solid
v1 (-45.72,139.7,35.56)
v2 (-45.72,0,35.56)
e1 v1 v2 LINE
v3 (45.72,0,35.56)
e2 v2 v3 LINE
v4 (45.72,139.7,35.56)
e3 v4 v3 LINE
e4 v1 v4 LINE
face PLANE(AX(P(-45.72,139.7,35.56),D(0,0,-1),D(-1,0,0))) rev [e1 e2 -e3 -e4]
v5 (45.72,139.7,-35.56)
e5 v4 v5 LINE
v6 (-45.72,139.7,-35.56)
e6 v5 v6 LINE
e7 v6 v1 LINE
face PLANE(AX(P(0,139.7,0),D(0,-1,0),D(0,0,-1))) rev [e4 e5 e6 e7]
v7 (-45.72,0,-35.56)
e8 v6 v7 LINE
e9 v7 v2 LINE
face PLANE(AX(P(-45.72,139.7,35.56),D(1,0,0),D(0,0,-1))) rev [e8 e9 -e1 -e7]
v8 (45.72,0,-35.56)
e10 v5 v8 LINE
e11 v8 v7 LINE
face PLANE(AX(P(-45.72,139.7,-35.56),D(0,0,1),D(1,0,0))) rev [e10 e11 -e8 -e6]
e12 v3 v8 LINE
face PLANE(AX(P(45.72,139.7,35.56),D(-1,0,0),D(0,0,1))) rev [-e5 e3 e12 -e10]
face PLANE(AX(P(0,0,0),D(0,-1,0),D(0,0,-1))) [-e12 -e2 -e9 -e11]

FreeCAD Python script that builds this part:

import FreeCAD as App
import Part
import Sketcher

V = App.Vector
Q = App.Units.Quantity

doc = App.newDocument("Part")
body = doc.addObject("PartDesign::Body", "Body")

# Sketch on XZ plane
sketch1 = body.newObject("Sketcher::SketchObject", "Sketch")
sketch1.AttachmentSupport = (doc.getObject("XZ_Plane"), [""])
sketch1.MapMode = "FlatFace"
sketch1.addGeometry([
    Part.LineSegment(V(-46, -36, 0), V(-46, 36, 0)),
    Part.LineSegment(V(-46, 36, 0), V(46, 36, 0)),
    Part.LineSegment(V(46, 36, 0), V(46, -36, 0)),
    Part.LineSegment(V(46, -36, 0), V(-46, -36, 0)),
], False)
sketch1.addConstraint([
    Sketcher.Constraint("Coincident", 0, 2, 1, 1),
    Sketcher.Constraint("Coincident", 1, 2, 2, 1),
    Sketcher.Constraint("Coincident", 2, 2, 3, 1),
    Sketcher.Constraint("Coincident", 3, 2, 0, 1),
    Sketcher.Constraint("Vertical", 0),
    Sketcher.Constraint("Horizontal", 1),
    Sketcher.Constraint("Vertical", 2),
    Sketcher.Constraint("Horizontal", 3),
    Sketcher.Constraint("Symmetric", 0, 2, 2, 2, -1, 1),
    Sketcher.Constraint("DistanceX", 1, 1, 1, 2, Q("3.6 in")),
    Sketcher.Constraint("DistanceY", 0, 1, 0, 2, Q("2.8 in")),
])
pad1 = body.newObject("PartDesign::Pad", "Pad")
pad1.Profile = sketch1
pad1.Length = Q("5.5 in")
pad1.Reversed = True

doc.recompute()
